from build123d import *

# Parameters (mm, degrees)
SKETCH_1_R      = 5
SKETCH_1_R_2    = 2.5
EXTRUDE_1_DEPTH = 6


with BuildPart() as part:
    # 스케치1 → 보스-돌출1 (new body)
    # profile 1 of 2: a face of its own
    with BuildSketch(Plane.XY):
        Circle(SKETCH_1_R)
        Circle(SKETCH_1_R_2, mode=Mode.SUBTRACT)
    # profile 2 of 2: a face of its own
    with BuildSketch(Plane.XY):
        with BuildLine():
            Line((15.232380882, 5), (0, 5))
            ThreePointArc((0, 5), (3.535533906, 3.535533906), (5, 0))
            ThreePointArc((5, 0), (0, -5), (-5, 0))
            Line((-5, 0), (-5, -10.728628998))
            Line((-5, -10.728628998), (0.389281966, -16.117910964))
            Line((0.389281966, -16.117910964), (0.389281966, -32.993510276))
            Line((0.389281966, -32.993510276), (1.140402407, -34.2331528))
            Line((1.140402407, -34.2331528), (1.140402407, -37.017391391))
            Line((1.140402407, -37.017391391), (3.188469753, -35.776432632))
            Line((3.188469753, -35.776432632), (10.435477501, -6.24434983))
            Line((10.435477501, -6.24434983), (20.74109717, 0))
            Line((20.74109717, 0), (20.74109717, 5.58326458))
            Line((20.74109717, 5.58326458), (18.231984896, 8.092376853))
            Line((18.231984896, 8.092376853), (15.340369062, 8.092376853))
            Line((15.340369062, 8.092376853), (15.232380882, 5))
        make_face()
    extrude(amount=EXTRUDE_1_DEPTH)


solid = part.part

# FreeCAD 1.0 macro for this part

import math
import FreeCAD as App
import Part
import Sketcher
from FreeCAD import Vector
Q = App.Units.Quantity

doc = App.newDocument("Part")
body = doc.addObject("PartDesign::Body", "Body")

sketch1 = doc.addObject("Sketcher::SketchObject", "Sketch")
body.addObject(sketch1)
sketch1.AttachmentSupport = (doc.XY_Plane, [""])
sketch1.MapMode = "FlatFace"
sketch1.addGeometry([
    Part.ArcOfCircle(Part.Circle(Vector(0, 0, 0), Vector(0, 0, 1), 5), math.radians(90), math.radians(180)),
    Part.LineSegment(Vector(-5, 0, 0), Vector(-5, -10.7, 0)),
    Part.LineSegment(Vector(-5, -10.7, 0), Vector(0.4, -16.1, 0)),
    Part.LineSegment(Vector(0.4, -16.1, 0), Vector(0.4, -33, 0)),
    Part.LineSegment(Vector(0.4, -33, 0), Vector(1.1, -34.2, 0)),
    Part.LineSegment(Vector(1.1, -34.2, 0), Vector(1.1, -37, 0)),
    Part.LineSegment(Vector(1.1, -37, 0), Vector(3.2, -35.8, 0)),
    Part.LineSegment(Vector(3.2, -35.8, 0), Vector(10.4, -6.2, 0)),
    Part.LineSegment(Vector(10.4, -6.2, 0), Vector(20.7, 0, 0)),
    Part.LineSegment(Vector(20.7, 0, 0), Vector(20.7, 5.6, 0)),
    Part.LineSegment(Vector(20.7, 5.6, 0), Vector(18.2, 8.1, 0)),
    Part.LineSegment(Vector(18.2, 8.1, 0), Vector(15.3, 8.1, 0)),
    Part.LineSegment(Vector(15.3, 8.1, 0), Vector(15.2, 5, 0)),
    Part.LineSegment(Vector(15.2, 5, 0), Vector(0, 5, 0)),
    Part.Circle(Vector(0, 0, 0), Vector(0, 0, 1), 2.5),
], False)
sketch1.addConstraint([
    Sketcher.Constraint("Tangent", 0, 2, 1, 1),
    Sketcher.Constraint("Coincident", 1, 2, 2, 1),
    Sketcher.Constraint("Coincident", 2, 2, 3, 1),
    Sketcher.Constraint("Coincident", 3, 2, 4, 1),
    Sketcher.Constraint("Coincident", 4, 2, 5, 1),
    Sketcher.Constraint("Coincident", 5, 2, 6, 1),
    Sketcher.Constraint("Coincident", 6, 2, 7, 1),
    Sketcher.Constraint("Coincident", 7, 2, 8, 1),
    Sketcher.Constraint("Coincident", 8, 2, 9, 1),
    Sketcher.Constraint("Coincident", 9, 2, 10, 1),
    Sketcher.Constraint("Coincident", 10, 2, 11, 1),
    Sketcher.Constraint("Coincident", 11, 2, 12, 1),
    Sketcher.Constraint("Coincident", 12, 2, 13, 1),
    Sketcher.Constraint("Tangent", 13, 2, 0, 1),
    Sketcher.Constraint("Vertical", 1),
    Sketcher.Constraint("Vertical", 3),
    Sketcher.Constraint("Vertical", 5),
    Sketcher.Constraint("Vertical", 9),
    Sketcher.Constraint("Horizontal", 11),
    Sketcher.Constraint("Horizontal", 13),
    Sketcher.Constraint("Coincident", 0, 3, -1, 1),
    Sketcher.Constraint("Coincident", 14, 3, -1, 1),
    Sketcher.Constraint("PointOnObject", 8, 2, -1),
    Sketcher.Constraint("Perpendicular", 4, 6),
    Sketcher.Constraint("Parallel", 6, 8),
    Sketcher.Constraint("Parallel", 2, 10),
    Sketcher.Constraint("Diameter", 14, 5.0),
    Sketcher.Constraint("Radius", 0, 5.0),
    Sketcher.Constraint("Angle", 2, Q("-45 deg")),
    Sketcher.Constraint("Angle", 12, Q("-92 deg")),
    Sketcher.Constraint("DistanceY", 3, 2, 3, 1, 16.875599),
    Sketcher.Constraint("Distance", 8, 12.049801),
    Sketcher.Constraint("DistanceX", 13, 2, 13, 1, 15.232381),
    Sketcher.Constraint("DistanceY", 1, 2, 1, 1, 10.728629),
    Sketcher.Constraint("DistanceY", 5, 2, 5, 1, 2.784239),
    Sketcher.Constraint("Distance", 10, 3.548421),
    Sketcher.Constraint("Distance", 12, 3.094262),
    Sketcher.Constraint("DistanceX", 11, 2, 11, 1, 2.891616),
    Sketcher.Constraint("DistanceX", -1, 1, 2, 2, 0.389282),
    Sketcher.Constraint("DistanceY", 5, 2, -1, 1, 37.017391),
    Sketcher.Constraint("DistanceX", -1, 1, 6, 2, 3.18847),
    Sketcher.Constraint("DistanceY", 7, 2, -1, 1, 6.24435),
])
pad1 = doc.addObject("PartDesign::Pad", "Pad")
body.addObject(pad1)
pad1.Profile = sketch1
pad1.Length = 6

doc.recompute()
